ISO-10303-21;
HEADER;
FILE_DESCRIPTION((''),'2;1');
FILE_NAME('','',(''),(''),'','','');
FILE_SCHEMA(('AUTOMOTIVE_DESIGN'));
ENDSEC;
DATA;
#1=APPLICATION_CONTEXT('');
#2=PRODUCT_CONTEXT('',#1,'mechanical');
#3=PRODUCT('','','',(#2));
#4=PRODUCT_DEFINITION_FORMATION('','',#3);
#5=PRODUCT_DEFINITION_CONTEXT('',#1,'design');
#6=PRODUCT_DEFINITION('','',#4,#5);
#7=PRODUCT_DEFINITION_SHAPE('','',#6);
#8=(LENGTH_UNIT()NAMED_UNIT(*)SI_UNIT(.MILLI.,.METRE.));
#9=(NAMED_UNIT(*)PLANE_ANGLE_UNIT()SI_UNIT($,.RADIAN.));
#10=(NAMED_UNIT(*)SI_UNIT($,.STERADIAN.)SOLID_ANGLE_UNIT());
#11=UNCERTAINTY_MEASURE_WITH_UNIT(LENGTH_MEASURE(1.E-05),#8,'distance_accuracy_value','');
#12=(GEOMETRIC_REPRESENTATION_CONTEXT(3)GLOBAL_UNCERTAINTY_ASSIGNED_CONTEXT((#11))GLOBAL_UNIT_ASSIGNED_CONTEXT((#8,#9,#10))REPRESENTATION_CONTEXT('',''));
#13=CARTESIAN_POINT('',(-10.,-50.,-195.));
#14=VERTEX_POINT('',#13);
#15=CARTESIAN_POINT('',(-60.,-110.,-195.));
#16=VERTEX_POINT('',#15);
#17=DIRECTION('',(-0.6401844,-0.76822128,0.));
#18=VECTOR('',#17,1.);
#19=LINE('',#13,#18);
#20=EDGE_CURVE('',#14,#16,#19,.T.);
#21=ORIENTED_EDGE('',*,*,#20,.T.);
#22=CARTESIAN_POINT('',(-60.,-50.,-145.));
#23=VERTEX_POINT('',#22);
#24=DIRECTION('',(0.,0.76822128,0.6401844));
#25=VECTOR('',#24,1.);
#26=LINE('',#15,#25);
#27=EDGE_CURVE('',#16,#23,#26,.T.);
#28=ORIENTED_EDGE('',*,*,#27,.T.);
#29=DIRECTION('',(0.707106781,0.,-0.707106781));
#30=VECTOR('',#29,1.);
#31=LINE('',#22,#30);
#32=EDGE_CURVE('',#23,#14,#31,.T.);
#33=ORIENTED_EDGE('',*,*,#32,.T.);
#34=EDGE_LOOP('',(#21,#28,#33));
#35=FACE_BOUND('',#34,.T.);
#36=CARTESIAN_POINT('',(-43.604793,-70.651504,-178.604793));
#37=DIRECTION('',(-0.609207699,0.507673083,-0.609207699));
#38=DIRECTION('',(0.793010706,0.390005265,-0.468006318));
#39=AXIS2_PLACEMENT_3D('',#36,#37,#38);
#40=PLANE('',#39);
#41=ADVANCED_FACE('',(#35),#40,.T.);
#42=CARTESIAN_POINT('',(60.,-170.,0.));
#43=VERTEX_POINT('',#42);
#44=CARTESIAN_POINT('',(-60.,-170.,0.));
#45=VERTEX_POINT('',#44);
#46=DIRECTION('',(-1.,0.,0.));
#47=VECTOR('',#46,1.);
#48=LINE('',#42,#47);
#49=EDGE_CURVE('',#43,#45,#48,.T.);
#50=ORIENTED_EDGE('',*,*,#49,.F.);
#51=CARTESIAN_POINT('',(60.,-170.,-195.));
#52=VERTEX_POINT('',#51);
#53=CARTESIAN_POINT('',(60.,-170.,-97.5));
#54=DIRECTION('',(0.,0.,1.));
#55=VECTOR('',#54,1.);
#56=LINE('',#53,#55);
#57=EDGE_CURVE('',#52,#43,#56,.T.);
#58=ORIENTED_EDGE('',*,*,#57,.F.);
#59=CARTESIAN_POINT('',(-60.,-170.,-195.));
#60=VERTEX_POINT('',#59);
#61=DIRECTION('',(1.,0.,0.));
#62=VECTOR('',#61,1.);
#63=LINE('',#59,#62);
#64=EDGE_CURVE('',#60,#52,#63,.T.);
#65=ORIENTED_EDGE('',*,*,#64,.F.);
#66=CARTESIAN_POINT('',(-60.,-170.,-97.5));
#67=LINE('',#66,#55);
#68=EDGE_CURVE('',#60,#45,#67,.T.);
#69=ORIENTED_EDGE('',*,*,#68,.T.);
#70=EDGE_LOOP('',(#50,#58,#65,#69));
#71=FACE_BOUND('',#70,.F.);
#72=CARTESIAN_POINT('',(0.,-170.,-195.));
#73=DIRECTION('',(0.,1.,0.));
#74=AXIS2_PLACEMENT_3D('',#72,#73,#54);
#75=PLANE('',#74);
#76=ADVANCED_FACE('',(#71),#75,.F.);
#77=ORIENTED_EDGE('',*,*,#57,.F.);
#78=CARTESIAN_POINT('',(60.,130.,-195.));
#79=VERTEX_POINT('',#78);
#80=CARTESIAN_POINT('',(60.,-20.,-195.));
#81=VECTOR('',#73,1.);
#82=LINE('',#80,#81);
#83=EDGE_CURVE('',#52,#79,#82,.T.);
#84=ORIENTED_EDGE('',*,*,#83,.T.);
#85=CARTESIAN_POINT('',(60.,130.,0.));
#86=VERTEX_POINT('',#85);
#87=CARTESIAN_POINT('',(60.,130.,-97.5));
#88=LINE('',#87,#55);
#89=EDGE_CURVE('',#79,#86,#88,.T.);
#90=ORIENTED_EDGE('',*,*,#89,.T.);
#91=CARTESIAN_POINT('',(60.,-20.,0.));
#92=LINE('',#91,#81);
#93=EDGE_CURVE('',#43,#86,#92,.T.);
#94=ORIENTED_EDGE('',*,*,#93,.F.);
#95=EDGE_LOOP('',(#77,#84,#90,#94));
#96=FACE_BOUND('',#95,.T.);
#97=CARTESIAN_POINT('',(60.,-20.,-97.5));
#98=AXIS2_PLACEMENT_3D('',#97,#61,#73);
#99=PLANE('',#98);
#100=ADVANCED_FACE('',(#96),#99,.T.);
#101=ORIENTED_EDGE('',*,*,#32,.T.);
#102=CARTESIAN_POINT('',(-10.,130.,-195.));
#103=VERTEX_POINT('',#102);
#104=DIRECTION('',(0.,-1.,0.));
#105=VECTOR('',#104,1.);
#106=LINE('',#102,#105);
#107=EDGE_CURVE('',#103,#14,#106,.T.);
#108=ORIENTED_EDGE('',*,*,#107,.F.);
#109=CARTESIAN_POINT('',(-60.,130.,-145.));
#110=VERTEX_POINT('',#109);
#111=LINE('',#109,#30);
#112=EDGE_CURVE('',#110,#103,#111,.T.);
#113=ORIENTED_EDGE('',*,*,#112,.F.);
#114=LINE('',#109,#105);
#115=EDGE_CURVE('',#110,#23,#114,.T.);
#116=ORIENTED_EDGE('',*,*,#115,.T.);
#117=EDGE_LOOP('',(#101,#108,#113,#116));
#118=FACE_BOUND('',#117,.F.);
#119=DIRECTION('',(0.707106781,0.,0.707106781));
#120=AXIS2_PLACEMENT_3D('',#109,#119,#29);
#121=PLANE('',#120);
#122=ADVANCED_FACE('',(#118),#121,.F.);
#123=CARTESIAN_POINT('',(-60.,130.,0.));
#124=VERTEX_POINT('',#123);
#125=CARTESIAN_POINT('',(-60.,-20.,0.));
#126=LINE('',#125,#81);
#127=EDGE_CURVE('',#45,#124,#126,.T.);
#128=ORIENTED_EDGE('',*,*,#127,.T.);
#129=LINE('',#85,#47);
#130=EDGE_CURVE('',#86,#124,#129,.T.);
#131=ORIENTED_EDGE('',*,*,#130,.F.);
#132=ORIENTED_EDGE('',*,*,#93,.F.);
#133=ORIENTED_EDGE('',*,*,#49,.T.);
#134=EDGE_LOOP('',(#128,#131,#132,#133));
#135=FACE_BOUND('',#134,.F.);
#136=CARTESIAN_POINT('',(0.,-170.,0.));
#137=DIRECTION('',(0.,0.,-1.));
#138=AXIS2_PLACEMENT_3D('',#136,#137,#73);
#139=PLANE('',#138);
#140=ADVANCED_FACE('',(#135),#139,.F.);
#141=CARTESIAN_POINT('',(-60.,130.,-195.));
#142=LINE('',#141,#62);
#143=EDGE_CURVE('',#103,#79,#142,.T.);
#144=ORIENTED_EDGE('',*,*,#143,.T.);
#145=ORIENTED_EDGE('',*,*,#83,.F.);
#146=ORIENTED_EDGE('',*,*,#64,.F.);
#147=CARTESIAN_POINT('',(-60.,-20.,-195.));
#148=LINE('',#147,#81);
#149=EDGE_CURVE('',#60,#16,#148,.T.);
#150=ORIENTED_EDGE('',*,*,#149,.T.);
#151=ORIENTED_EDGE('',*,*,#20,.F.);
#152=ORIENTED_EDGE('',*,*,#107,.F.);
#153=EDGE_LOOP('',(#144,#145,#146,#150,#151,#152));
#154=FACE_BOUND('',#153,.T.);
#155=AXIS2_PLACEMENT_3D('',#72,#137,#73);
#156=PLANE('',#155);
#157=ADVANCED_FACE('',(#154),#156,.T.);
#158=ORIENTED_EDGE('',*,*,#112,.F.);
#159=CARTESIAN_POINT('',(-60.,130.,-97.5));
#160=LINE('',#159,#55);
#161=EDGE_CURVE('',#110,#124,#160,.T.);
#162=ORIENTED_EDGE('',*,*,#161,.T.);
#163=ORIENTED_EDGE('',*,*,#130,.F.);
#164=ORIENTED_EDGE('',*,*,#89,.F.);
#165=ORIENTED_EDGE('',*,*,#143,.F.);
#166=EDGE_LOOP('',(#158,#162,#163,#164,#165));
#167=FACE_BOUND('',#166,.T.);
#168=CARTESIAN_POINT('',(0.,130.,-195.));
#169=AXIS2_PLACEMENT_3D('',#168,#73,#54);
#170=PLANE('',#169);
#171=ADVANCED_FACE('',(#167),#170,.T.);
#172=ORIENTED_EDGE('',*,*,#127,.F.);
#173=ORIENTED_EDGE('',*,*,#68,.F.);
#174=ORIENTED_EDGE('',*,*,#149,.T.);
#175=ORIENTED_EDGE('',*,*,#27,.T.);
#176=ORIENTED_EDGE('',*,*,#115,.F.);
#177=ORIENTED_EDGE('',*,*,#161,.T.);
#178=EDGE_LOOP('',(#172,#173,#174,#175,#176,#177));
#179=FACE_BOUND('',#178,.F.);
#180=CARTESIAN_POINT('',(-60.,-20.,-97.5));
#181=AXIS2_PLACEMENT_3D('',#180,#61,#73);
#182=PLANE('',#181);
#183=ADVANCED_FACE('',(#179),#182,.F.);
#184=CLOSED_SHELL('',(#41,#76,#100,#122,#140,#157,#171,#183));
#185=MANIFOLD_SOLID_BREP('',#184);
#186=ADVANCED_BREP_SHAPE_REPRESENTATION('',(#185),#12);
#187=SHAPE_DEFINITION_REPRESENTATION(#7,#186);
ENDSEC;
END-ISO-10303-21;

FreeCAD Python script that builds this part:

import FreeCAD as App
import Part
import Sketcher


def add_polygon(sketch, points):
    """Adds a closed chain of lines whose ends are joined by coincident constraints."""
    first, n = sketch.GeometryCount, len(points)
    for a, b in zip(points, points[1:] + points[:1]):
        sketch.addGeometry(Part.LineSegment(App.Vector(*a, 0), App.Vector(*b, 0)), False)
    for i in range(n):
        sketch.addConstraint(Sketcher.Constraint("Coincident", first + i, 2, first + (i + 1) % n, 1))

doc = App.newDocument("Part")
body = doc.addObject("PartDesign::Body", "Body")

# Sketch on YZ plane
sketch1 = body.newObject("Sketcher::SketchObject", "Sketch")
sketch1.AttachmentSupport = (doc.getObject("YZ_Plane"), [""])
sketch1.MapMode = "FlatFace"
add_polygon(sketch1, [(-170, 0), (-170, -195), (130, -195), (130, 0)])  # lines 0-3
sketch1.addConstraint(Sketcher.Constraint("Vertical", 0))
sketch1.addConstraint(Sketcher.Constraint("Horizontal", 1))
sketch1.addConstraint(Sketcher.Constraint("Vertical", 2))
sketch1.addConstraint(Sketcher.Constraint("Horizontal", 3))
sketch1.addConstraint(Sketcher.Constraint("PointOnObject", 2, 2, -1))
sketch1.addConstraint(Sketcher.Constraint("DistanceX", 1, 1, 1, 2, 300.0))
sketch1.addConstraint(Sketcher.Constraint("DistanceY", 0, 2, 0, 1, 195.0))
sketch1.addConstraint(Sketcher.Constraint("DistanceX", 0, 2, -1, 1, 170.0))
pad1 = body.newObject("PartDesign::Pad", "Pad")
pad1.Profile = sketch1
pad1.Length = 120
pad1.Midplane = True

# Sketch on XZ plane
sketch2 = body.newObject("Sketcher::SketchObject", "Sketch001")
sketch2.AttachmentSupport = (doc.getObject("XZ_Plane"), [""])
sketch2.MapMode = "FlatFace"
sketch2.AttachmentOffset = App.Placement(App.Vector(0, 0, -130), App.Rotation())
add_polygon(sketch2, [(-60, -145), (-10, -195), (-60, -195)])  # lines 0-2
sketch2.addConstraint(Sketcher.Constraint("Horizontal", 1))
sketch2.addConstraint(Sketcher.Constraint("Vertical", 2))
sketch2.addConstraint(Sketcher.Constraint("Equal", 1, 2))
sketch2.addConstraint(Sketcher.Constraint("DistanceX", 1, 2, 1, 1, 50.0))
sketch2.addConstraint(Sketcher.Constraint("DistanceX", 0, 2, -1, 1, 10.0))
sketch2.addConstraint(Sketcher.Constraint("DistanceY", 0, 2, -1, 1, 195.0))
pocket1 = body.newObject("PartDesign::Pocket", "Pocket")
pocket1.Profile = sketch2
pocket1.Length = 180
pocket1.Reversed = True

# Sketch on an angled plane
sketch3 = body.newObject("Sketcher::SketchObject", "Sketch002")
sketch3.Placement = App.Placement(App.Vector(-60.618557, 50.515464, -60.618557), App.Rotation(App.Vector(0.793010706, 0.390005265, -0.468006318), App.Vector(0, -0.76822128, -0.6401844), App.Vector(-0.609207699, 0.507673083, -0.609207699), "ZXY"))
add_polygon(sketch3, [(1, 209), (1, 131), (64, 163)])  # lines 0-2
sketch3.addConstraint(Sketcher.Constraint("Vertical", 0))
sketch3.addConstraint(Sketcher.Constraint("DistanceY", -1, 1, 0, 2, 131.237802))
sketch3.addConstraint(Sketcher.Constraint("DistanceY", -1, 1, 2, 2, 209.340299))
sketch3.addConstraint(Sketcher.Constraint("Distance", 1, 70.710678))
sketch3.addConstraint(Sketcher.Constraint("DistanceX", -1, 1, 0, 2, 0.780011))
sketch3.addConstraint(Sketcher.Constraint("DistanceX", -1, 1, 1, 2, 63.830862))
pocket2 = body.newObject("PartDesign::Pocket", "Pocket001")
pocket2.Profile = sketch3
pocket2.Type = "ThroughAll"
pocket2.Reversed = True

doc.recompute()
